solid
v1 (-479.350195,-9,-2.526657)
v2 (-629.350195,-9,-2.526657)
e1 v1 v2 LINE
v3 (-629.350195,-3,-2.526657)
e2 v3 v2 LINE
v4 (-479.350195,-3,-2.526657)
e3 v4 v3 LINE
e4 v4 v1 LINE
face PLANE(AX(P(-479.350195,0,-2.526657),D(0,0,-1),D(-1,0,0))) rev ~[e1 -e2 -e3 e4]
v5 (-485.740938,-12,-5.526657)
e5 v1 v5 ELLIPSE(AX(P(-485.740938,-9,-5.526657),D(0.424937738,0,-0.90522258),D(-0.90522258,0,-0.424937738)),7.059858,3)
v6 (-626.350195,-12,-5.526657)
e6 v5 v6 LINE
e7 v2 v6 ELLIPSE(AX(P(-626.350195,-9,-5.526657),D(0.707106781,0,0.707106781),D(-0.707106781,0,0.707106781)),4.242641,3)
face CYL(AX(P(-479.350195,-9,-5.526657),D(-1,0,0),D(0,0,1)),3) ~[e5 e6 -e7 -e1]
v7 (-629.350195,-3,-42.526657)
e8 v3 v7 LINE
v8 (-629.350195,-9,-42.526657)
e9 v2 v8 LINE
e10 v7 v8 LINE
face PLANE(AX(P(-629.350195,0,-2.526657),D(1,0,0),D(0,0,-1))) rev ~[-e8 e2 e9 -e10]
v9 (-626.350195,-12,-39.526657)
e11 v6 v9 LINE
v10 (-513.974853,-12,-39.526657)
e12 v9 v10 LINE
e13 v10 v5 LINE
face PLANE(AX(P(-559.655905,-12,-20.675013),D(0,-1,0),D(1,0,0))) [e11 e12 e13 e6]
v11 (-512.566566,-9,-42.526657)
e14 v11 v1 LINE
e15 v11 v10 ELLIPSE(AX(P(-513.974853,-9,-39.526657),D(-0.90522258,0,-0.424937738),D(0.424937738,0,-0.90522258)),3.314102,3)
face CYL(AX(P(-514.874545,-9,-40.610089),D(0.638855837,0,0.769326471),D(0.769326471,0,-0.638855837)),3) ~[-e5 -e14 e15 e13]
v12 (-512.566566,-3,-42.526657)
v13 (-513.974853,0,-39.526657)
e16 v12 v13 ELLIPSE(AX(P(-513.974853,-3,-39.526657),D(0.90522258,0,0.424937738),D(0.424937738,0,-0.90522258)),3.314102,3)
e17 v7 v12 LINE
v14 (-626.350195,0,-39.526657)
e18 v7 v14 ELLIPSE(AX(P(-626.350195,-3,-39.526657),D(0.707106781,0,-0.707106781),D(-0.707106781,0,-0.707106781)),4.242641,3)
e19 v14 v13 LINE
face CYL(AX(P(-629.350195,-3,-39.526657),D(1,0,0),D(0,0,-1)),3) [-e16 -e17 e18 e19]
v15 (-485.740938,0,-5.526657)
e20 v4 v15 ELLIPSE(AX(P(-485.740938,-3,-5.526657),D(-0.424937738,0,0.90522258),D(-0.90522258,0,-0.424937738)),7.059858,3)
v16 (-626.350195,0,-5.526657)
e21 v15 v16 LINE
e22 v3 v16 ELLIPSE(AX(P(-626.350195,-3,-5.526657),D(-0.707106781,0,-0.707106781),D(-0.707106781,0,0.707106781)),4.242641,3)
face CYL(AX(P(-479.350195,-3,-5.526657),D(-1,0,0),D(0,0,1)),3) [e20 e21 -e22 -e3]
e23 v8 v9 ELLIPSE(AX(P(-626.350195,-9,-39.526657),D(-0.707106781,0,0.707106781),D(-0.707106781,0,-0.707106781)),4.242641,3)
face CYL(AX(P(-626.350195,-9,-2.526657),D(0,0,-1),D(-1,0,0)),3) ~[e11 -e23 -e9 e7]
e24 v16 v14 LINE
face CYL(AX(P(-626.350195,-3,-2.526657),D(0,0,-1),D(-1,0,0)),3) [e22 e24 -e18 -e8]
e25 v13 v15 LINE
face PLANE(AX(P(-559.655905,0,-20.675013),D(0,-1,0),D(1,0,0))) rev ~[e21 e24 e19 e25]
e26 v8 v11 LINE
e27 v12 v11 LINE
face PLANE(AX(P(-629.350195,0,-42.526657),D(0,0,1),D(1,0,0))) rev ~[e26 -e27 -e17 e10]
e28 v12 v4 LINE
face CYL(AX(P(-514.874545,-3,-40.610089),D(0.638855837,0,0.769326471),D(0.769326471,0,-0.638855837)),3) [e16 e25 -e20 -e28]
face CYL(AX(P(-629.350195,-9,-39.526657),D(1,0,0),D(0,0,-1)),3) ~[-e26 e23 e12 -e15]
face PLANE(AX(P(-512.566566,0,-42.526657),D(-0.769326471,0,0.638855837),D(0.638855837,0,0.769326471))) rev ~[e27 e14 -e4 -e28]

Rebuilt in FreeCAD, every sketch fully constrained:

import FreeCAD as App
import Part
import Sketcher

V = App.Vector
Q = App.Units.Quantity


def edges_at(feature, points):
    """Names of the edges that pass closest to the given points."""
    edges = feature.Shape.Edges
    near = lambda p: min(range(len(edges)), key=lambda i: edges[i].distToShape(Part.Vertex(*p))[0])
    return sorted({f"Edge{near(p) + 1}" for p in points})

doc = App.newDocument("Part")
body = doc.addObject("PartDesign::Body", "Body")

sketch1 = body.newObject("Sketcher::SketchObject", "Sketch")
sketch1.AttachmentSupport = (doc.getObject("XZ_Plane"), [""])
sketch1.MapMode = "FlatFace"
sketch1.addGeometry([
    Part.LineSegment(V(-479, -3, 0), V(-629, -3, 0)),
    Part.LineSegment(V(-629, -3, 0), V(-629, -43, 0)),
    Part.LineSegment(V(-629, -43, 0), V(-513, -43, 0)),
    Part.LineSegment(V(-513, -43, 0), V(-479, -3, 0)),
], False)
sketch1.addConstraint([
    Sketcher.Constraint("Coincident", 0, 2, 1, 1),
    Sketcher.Constraint("Coincident", 1, 2, 2, 1),
    Sketcher.Constraint("Coincident", 2, 2, 3, 1),
    Sketcher.Constraint("Coincident", 3, 2, 0, 1),
    Sketcher.Constraint("Horizontal", 0),
    Sketcher.Constraint("Vertical", 1),
    Sketcher.Constraint("Horizontal", 2),
    Sketcher.Constraint("DistanceX", 0, 2, 0, 1, Q("150 mm")),
    Sketcher.Constraint("DistanceY", 1, 2, 1, 1, Q("40 mm")),
    Sketcher.Constraint("DistanceX", 2, 1, 2, 2, Q("116.783629 mm")),
    Sketcher.Constraint("DistanceX", 0, 2, -1, 1, Q("629.350195 mm")),
    Sketcher.Constraint("DistanceY", 0, 2, -1, 1, Q("2.526657 mm")),
])
pad1 = body.newObject("PartDesign::Pad", "Pad")
pad1.Profile = sketch1
pad1.Length = 12
doc.recompute()

fillet = body.newObject("PartDesign::Fillet", "Fillet")
fillet.Base = (pad1, edges_at(pad1, [
    (-554.35, -12, -2.527),
    (-629.35, -12, -22.527),
    (-570.958, -12, -42.527),
    (-495.958, -12, -22.527),
    (-554.35, 0, -2.527),
    (-629.35, 0, -22.527),
    (-570.958, 0, -42.527),
    (-495.958, 0, -22.527),
]))
fillet.Radius = 3

doc.recompute()
